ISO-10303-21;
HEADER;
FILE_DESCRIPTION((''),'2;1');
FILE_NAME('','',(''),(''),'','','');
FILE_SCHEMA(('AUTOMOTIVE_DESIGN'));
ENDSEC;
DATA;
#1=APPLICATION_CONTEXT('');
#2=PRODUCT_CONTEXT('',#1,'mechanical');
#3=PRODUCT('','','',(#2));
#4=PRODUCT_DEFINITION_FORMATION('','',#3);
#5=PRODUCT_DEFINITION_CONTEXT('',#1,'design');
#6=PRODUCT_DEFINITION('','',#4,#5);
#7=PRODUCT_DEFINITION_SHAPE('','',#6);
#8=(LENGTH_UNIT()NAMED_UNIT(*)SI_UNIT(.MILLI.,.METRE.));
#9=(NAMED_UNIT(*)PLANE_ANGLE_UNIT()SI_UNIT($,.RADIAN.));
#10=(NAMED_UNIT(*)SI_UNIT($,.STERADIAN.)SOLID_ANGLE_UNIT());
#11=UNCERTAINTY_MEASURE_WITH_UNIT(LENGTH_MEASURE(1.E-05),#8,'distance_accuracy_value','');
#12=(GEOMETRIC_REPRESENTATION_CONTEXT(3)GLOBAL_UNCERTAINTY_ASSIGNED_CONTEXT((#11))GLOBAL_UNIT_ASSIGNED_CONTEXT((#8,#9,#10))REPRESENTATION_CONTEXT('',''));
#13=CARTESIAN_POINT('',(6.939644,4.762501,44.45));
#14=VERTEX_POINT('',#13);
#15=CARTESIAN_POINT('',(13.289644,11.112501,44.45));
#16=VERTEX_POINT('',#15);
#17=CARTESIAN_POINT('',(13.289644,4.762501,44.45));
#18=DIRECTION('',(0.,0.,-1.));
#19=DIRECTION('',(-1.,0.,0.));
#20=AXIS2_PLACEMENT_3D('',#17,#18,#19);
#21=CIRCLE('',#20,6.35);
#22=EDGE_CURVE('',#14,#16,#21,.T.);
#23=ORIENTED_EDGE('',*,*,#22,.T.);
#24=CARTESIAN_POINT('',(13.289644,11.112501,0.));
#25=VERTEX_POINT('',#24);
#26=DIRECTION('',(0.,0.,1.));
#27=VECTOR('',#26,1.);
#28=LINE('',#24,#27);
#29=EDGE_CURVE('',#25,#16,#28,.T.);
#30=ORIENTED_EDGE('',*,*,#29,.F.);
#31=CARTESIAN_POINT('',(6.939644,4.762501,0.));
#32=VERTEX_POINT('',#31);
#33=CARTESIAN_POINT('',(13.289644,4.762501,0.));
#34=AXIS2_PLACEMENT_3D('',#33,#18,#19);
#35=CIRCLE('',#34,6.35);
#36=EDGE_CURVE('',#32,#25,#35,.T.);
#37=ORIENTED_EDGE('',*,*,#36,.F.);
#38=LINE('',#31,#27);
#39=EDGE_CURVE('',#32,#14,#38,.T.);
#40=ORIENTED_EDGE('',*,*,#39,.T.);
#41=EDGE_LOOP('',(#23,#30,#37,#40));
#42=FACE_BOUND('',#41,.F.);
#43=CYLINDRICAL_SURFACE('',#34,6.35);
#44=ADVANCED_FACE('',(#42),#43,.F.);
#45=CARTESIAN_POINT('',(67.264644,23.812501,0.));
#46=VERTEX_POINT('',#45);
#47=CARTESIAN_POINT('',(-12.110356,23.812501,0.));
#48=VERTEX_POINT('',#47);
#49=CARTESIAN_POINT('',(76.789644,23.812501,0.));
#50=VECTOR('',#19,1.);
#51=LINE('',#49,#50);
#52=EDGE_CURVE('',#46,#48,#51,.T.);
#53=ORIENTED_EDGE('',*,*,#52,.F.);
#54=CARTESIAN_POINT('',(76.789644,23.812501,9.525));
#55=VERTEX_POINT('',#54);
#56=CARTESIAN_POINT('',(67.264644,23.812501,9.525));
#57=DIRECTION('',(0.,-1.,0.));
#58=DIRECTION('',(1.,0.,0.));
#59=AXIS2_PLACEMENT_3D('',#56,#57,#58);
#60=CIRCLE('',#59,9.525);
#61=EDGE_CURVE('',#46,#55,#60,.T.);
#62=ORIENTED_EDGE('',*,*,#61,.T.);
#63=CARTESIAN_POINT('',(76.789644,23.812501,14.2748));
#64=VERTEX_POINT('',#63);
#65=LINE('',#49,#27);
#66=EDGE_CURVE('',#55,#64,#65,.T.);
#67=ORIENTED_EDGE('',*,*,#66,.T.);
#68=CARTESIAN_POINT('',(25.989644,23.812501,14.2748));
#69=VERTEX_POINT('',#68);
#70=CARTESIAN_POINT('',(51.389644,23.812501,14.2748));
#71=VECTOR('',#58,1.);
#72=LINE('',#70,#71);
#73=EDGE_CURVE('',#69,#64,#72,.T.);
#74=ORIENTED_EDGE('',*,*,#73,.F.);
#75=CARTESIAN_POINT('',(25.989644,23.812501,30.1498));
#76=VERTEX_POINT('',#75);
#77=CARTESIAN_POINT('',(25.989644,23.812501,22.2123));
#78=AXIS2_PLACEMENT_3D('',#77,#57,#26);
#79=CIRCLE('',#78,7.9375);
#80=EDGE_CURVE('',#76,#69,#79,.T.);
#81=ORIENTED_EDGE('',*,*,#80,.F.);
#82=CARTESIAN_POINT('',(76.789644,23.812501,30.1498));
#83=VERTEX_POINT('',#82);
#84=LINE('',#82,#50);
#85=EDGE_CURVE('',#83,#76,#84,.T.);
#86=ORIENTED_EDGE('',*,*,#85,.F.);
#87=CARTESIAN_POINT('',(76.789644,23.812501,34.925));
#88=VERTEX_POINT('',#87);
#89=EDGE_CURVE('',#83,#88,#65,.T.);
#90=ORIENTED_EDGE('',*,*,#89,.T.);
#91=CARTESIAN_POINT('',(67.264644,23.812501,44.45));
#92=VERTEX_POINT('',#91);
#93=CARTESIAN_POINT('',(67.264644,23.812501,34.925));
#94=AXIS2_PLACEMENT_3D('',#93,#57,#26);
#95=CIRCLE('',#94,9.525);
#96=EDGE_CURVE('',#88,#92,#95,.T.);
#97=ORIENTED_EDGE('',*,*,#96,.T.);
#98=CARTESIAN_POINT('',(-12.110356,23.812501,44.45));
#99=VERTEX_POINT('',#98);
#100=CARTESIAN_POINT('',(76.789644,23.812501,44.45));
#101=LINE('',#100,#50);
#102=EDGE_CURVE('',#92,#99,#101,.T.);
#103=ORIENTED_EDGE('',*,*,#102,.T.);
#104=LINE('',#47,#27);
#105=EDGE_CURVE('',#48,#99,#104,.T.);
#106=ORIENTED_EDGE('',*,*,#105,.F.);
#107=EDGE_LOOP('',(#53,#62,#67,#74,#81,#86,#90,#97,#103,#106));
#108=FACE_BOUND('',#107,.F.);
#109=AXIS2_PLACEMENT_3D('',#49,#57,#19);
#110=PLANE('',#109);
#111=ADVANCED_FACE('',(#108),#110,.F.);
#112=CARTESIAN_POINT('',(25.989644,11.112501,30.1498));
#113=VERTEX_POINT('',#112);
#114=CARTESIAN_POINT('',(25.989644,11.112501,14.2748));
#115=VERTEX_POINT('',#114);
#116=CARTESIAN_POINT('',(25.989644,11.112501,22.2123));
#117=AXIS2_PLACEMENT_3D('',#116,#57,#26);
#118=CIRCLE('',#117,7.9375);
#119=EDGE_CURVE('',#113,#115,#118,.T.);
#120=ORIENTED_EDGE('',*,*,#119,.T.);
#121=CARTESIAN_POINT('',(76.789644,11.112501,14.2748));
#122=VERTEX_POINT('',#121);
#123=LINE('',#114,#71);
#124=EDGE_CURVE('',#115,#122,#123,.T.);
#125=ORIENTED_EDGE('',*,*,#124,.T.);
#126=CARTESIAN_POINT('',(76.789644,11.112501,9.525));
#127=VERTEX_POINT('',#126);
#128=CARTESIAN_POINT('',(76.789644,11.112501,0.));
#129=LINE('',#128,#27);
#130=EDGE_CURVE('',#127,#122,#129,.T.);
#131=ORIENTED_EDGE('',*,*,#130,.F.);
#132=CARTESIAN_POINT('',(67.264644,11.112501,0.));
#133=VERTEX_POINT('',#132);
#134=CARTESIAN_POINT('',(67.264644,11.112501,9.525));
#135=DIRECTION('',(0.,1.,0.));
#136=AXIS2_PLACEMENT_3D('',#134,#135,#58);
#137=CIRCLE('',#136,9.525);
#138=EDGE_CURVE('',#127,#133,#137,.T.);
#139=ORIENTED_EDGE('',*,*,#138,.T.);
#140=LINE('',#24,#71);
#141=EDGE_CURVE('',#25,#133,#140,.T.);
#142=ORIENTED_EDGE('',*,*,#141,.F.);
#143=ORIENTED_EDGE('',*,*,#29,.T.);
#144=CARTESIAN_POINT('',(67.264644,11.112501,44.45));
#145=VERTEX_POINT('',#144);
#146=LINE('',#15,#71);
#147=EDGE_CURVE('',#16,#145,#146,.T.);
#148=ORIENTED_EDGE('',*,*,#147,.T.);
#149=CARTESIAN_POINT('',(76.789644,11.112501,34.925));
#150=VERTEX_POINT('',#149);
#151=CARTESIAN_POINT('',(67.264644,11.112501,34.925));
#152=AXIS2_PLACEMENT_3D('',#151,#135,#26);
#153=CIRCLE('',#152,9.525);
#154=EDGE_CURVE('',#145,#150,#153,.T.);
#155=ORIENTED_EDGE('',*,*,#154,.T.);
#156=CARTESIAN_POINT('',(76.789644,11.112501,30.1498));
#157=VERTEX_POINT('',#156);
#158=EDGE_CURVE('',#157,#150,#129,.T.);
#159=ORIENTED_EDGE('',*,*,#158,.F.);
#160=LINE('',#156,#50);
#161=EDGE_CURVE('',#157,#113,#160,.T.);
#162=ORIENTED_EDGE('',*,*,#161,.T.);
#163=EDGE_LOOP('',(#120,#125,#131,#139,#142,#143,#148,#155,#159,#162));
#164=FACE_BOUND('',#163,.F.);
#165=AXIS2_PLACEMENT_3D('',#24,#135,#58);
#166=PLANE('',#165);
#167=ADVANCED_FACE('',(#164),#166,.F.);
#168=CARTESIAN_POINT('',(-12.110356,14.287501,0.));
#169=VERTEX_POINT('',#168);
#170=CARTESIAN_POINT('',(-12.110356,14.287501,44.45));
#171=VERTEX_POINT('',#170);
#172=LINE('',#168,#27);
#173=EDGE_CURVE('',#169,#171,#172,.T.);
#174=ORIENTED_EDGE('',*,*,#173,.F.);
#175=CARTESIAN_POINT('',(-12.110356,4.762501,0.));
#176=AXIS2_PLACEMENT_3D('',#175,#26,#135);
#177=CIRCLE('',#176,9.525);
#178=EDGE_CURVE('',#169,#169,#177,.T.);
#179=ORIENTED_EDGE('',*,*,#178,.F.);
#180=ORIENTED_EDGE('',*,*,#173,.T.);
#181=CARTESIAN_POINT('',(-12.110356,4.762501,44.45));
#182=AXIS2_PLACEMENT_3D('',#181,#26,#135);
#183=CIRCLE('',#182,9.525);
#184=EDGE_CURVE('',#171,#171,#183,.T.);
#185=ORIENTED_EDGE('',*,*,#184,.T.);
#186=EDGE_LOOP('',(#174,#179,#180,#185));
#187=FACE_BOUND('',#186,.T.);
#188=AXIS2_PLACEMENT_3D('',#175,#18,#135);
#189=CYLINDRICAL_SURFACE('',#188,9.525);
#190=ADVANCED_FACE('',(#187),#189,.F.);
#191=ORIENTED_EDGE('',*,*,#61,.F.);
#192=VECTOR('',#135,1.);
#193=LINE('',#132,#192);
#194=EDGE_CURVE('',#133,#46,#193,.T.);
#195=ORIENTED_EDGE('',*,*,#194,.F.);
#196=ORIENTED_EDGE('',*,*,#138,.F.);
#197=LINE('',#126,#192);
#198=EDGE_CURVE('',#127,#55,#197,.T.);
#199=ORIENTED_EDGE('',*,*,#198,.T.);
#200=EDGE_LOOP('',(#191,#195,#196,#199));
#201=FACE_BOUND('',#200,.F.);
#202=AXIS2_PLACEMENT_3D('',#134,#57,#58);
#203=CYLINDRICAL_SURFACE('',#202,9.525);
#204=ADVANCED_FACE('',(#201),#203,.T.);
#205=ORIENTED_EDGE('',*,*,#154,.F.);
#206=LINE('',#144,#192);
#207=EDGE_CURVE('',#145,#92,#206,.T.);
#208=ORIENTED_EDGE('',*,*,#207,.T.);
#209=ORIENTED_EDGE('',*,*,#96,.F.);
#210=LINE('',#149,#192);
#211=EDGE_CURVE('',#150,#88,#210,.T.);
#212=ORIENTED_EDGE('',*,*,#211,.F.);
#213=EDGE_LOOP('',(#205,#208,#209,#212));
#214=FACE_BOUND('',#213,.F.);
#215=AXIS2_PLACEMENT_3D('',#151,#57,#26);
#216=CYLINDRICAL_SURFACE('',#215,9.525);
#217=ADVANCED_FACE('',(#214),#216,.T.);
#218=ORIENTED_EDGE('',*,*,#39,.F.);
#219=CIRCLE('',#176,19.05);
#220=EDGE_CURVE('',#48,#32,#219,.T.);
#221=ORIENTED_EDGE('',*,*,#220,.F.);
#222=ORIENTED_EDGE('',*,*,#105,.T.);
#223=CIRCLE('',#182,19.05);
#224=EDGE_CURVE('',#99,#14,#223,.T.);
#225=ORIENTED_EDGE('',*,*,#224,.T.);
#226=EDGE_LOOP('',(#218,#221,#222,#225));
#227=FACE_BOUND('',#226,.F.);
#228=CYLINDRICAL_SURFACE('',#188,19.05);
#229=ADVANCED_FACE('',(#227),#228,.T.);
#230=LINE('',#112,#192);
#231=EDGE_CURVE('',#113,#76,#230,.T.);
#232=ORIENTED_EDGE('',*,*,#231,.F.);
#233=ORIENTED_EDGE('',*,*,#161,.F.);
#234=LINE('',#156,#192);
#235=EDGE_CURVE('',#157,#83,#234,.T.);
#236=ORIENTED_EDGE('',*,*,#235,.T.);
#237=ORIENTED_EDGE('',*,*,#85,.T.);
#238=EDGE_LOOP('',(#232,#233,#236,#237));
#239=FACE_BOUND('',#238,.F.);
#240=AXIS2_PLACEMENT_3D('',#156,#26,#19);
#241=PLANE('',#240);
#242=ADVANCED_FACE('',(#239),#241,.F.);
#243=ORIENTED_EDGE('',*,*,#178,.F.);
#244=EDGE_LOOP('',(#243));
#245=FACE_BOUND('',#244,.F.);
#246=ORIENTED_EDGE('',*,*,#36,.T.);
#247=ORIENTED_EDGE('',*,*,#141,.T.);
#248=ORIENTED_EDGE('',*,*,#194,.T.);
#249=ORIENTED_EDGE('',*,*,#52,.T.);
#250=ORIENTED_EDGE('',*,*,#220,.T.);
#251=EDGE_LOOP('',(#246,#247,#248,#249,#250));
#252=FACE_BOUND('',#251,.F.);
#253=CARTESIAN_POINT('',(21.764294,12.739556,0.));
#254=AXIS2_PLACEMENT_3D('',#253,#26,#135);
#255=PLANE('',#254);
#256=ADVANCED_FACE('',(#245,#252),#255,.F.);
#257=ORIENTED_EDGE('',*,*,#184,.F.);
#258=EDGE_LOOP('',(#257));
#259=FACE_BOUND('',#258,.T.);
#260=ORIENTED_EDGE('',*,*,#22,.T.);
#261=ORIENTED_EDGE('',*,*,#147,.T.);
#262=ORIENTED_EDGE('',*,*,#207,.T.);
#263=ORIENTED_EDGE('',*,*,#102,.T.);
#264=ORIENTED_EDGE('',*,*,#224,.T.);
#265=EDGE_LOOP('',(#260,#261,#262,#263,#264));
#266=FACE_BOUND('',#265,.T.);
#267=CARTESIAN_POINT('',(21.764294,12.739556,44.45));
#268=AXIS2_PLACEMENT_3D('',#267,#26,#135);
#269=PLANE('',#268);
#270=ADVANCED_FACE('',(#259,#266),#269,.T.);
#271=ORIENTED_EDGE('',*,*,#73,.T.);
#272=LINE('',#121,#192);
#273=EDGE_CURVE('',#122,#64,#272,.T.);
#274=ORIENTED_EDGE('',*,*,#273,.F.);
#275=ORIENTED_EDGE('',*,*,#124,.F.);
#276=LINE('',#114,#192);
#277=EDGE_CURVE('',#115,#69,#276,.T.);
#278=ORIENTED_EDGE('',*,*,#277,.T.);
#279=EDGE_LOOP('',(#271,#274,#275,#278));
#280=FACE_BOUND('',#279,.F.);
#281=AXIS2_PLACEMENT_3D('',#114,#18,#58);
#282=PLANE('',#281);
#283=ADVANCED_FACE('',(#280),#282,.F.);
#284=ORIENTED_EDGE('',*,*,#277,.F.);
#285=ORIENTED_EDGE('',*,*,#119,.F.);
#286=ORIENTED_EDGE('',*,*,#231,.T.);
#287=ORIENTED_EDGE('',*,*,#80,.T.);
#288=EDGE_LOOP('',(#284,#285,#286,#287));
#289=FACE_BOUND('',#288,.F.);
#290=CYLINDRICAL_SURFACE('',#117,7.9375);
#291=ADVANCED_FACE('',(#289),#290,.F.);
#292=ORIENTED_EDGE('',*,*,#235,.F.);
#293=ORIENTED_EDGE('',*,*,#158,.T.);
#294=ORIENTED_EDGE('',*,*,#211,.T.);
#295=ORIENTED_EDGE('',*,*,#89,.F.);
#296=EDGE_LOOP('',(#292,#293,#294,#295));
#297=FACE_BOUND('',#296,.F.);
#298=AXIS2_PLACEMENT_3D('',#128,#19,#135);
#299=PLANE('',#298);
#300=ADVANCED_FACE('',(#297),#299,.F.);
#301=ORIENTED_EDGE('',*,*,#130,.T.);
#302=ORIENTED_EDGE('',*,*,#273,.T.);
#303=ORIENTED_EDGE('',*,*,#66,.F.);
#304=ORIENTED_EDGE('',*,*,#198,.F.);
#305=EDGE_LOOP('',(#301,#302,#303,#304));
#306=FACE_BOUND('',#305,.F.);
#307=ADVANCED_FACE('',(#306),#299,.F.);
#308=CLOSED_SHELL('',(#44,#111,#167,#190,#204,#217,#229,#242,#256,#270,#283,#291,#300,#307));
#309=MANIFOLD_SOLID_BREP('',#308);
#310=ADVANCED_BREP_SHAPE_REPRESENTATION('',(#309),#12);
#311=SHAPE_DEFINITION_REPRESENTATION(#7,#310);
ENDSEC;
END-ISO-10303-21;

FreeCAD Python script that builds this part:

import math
import FreeCAD as App
import Part
import Sketcher

V = App.Vector
Q = App.Units.Quantity

doc = App.newDocument("Part")
body = doc.addObject("PartDesign::Body", "Body")

sketch1 = body.newObject("Sketcher::SketchObject", "Sketch")
sketch1.AttachmentSupport = (doc.getObject("XY_Plane"), [""])
sketch1.MapMode = "FlatFace"
sketch1.addGeometry(Part.LineSegment(V(-12, -65, 0), V(-12, 24, 0)), False)
sketch1.addGeometry(Part.ArcOfCircle(Part.Circle(V(-31, 24, 0), V(0, 0, 1), 19), math.radians(0), math.radians(270)), False)
sketch1.addGeometry(Part.ArcOfCircle(Part.Circle(V(-31, -2, 0), V(0, 0, 1), 6), math.radians(0), math.radians(90)), False)
sketch1.addGeometry(Part.LineSegment(V(-25, -2, 0), V(-25, -65, 0)), False)
sketch1.addGeometry(Part.LineSegment(V(-25, -65, 0), V(-12, -65, 0)), False)
sketch1.addGeometry(Part.Circle(V(-31, 24, 0), V(0, 0, 1), 10), False)
sketch1.addConstraint(Sketcher.Constraint("Tangent", 0, 2, 1, 1))
sketch1.addConstraint(Sketcher.Constraint("Tangent", 1, 2, 2, 2))
sketch1.addConstraint(Sketcher.Constraint("Tangent", 2, 1, 3, 1))
sketch1.addConstraint(Sketcher.Constraint("Coincident", 3, 2, 4, 1))
sketch1.addConstraint(Sketcher.Constraint("Coincident", 4, 2, 0, 1))
sketch1.addConstraint(Sketcher.Constraint("Vertical", 0))
sketch1.addConstraint(Sketcher.Constraint("Vertical", 3))
sketch1.addConstraint(Sketcher.Constraint("Horizontal", 4))
sketch1.addConstraint(Sketcher.Constraint("Coincident", 5, 3, 1, 3))
sketch1.addConstraint(Sketcher.Constraint("Vertical", 1, 3, 2, 3))
sketch1.addConstraint(Sketcher.Constraint("Diameter", 5, Q("0.75 in")))
sketch1.addConstraint(Sketcher.Constraint("Radius", 1, Q("0.75 in")))
sketch1.addConstraint(Sketcher.Constraint("Radius", 2, Q("0.25 in")))
sketch1.addConstraint(Sketcher.Constraint("DistanceY", 0, 1, 0, 2, Q("3.5 in")))
sketch1.addConstraint(Sketcher.Constraint("DistanceY", -1, 1, 1, 3, Q("0.9375 in")))
sketch1.addConstraint(Sketcher.Constraint("DistanceX", 1, 3, -1, 1, Q("31.160356 mm")))
pad1 = body.newObject("PartDesign::Pad", "Pad")
pad1.Profile = sketch1
pad1.Length = Q("1.75 in")

sketch2 = body.newObject("Sketcher::SketchObject", "Sketch001")
sketch2.AttachmentSupport = (doc.getObject("YZ_Plane"), [""])
sketch2.MapMode = "FlatFace"
sketch2.AttachmentOffset = App.Placement(V(0, 0, -24.810356), App.Rotation())
sketch2.addGeometry(Part.LineSegment(V(-14, 14, 0), V(-65, 14, 0)), False)
sketch2.addGeometry(Part.LineSegment(V(-65, 14, 0), V(-65, 30, 0)), False)
sketch2.addGeometry(Part.LineSegment(V(-65, 30, 0), V(-14, 30, 0)), False)
sketch2.addGeometry(Part.ArcOfCircle(Part.Circle(V(-14, 22, 0), V(0, 0, 1), 8), math.radians(-90), math.radians(90)), False)
sketch2.addGeometry(Part.LineSegment(V(-65, 44, 0), V(-56, 44, 0)), False)
sketch2.addGeometry(Part.ArcOfCircle(Part.Circle(V(-56, 35, 0), V(0, 0, 1), 10), math.radians(90), math.radians(180)), False)
sketch2.addGeometry(Part.LineSegment(V(-65, 35, 0), V(-65, 44, 0)), False)
sketch2.addGeometry(Part.ArcOfCircle(Part.Circle(V(-56, 10, 0), V(0, 0, 1), 10), math.radians(180), math.radians(270)), False)
sketch2.addGeometry(Part.LineSegment(V(-56, 0, 0), V(-65, 0, 0)), False)
sketch2.addGeometry(Part.LineSegment(V(-65, 0, 0), V(-65, 10, 0)), False)
sketch2.addConstraint(Sketcher.Constraint("Coincident", 0, 2, 1, 1))
sketch2.addConstraint(Sketcher.Constraint("Coincident", 1, 2, 2, 1))
sketch2.addConstraint(Sketcher.Constraint("Tangent", 2, 2, 3, 2))
sketch2.addConstraint(Sketcher.Constraint("Tangent", 3, 1, 0, 1))
sketch2.addConstraint(Sketcher.Constraint("Tangent", 4, 2, 5, 1))
sketch2.addConstraint(Sketcher.Constraint("Tangent", 5, 2, 6, 1))
sketch2.addConstraint(Sketcher.Constraint("Coincident", 6, 2, 4, 1))
sketch2.addConstraint(Sketcher.Constraint("Tangent", 7, 2, 8, 1))
sketch2.addConstraint(Sketcher.Constraint("Coincident", 8, 2, 9, 1))
sketch2.addConstraint(Sketcher.Constraint("Tangent", 9, 2, 7, 1))
sketch2.addConstraint(Sketcher.Constraint("Horizontal", 0))
sketch2.addConstraint(Sketcher.Constraint("Vertical", 1))
sketch2.addConstraint(Sketcher.Constraint("Horizontal", 2))
sketch2.addConstraint(Sketcher.Constraint("Horizontal", 4))
sketch2.addConstraint(Sketcher.Constraint("Vertical", 6))
sketch2.addConstraint(Sketcher.Constraint("Horizontal", 8))
sketch2.addConstraint(Sketcher.Constraint("Vertical", 9))
sketch2.addConstraint(Sketcher.Constraint("Equal", 5, 7))
sketch2.addConstraint(Sketcher.Constraint("PointOnObject", 7, 2, -1))
sketch2.addConstraint(Sketcher.Constraint("Vertical", 5, 3, 7, 3))
sketch2.addConstraint(Sketcher.Constraint("Vertical", 1, 2, 5, 2))
sketch2.addConstraint(Sketcher.Constraint("DistanceX", 0, 2, 0, 1, Q("2 in")))
sketch2.addConstraint(Sketcher.Constraint("Radius", 3, Q("0.3125 in")))
sketch2.addConstraint(Sketcher.Constraint("Radius", 5, Q("0.375 in")))
sketch2.addConstraint(Sketcher.Constraint("DistanceY", 7, 3, 5, 3, Q("1 in")))
sketch2.addConstraint(Sketcher.Constraint("DistanceX", 3, 3, -1, 1, Q("0.5625 in")))
sketch2.addConstraint(Sketcher.Constraint("DistanceY", -1, 1, 0, 2, Q("0.562 in")))
pocket1 = body.newObject("PartDesign::Pocket", "Pocket")
pocket1.Profile = sketch2
pocket1.Length = Q("1 in")
pocket1.Reversed = True
body2 = doc.addObject("PartDesign::Body", "Body001")
doc.recompute()

body.Placement = App.Placement(V(11.702144, 35.922857, 0), App.Rotation(V(0, 0, -1), 270))
boolean = body2.newObject("PartDesign::Boolean", "Boolean")
boolean.Type = "Fuse"
boolean.addObjects([body])

doc.recompute()
